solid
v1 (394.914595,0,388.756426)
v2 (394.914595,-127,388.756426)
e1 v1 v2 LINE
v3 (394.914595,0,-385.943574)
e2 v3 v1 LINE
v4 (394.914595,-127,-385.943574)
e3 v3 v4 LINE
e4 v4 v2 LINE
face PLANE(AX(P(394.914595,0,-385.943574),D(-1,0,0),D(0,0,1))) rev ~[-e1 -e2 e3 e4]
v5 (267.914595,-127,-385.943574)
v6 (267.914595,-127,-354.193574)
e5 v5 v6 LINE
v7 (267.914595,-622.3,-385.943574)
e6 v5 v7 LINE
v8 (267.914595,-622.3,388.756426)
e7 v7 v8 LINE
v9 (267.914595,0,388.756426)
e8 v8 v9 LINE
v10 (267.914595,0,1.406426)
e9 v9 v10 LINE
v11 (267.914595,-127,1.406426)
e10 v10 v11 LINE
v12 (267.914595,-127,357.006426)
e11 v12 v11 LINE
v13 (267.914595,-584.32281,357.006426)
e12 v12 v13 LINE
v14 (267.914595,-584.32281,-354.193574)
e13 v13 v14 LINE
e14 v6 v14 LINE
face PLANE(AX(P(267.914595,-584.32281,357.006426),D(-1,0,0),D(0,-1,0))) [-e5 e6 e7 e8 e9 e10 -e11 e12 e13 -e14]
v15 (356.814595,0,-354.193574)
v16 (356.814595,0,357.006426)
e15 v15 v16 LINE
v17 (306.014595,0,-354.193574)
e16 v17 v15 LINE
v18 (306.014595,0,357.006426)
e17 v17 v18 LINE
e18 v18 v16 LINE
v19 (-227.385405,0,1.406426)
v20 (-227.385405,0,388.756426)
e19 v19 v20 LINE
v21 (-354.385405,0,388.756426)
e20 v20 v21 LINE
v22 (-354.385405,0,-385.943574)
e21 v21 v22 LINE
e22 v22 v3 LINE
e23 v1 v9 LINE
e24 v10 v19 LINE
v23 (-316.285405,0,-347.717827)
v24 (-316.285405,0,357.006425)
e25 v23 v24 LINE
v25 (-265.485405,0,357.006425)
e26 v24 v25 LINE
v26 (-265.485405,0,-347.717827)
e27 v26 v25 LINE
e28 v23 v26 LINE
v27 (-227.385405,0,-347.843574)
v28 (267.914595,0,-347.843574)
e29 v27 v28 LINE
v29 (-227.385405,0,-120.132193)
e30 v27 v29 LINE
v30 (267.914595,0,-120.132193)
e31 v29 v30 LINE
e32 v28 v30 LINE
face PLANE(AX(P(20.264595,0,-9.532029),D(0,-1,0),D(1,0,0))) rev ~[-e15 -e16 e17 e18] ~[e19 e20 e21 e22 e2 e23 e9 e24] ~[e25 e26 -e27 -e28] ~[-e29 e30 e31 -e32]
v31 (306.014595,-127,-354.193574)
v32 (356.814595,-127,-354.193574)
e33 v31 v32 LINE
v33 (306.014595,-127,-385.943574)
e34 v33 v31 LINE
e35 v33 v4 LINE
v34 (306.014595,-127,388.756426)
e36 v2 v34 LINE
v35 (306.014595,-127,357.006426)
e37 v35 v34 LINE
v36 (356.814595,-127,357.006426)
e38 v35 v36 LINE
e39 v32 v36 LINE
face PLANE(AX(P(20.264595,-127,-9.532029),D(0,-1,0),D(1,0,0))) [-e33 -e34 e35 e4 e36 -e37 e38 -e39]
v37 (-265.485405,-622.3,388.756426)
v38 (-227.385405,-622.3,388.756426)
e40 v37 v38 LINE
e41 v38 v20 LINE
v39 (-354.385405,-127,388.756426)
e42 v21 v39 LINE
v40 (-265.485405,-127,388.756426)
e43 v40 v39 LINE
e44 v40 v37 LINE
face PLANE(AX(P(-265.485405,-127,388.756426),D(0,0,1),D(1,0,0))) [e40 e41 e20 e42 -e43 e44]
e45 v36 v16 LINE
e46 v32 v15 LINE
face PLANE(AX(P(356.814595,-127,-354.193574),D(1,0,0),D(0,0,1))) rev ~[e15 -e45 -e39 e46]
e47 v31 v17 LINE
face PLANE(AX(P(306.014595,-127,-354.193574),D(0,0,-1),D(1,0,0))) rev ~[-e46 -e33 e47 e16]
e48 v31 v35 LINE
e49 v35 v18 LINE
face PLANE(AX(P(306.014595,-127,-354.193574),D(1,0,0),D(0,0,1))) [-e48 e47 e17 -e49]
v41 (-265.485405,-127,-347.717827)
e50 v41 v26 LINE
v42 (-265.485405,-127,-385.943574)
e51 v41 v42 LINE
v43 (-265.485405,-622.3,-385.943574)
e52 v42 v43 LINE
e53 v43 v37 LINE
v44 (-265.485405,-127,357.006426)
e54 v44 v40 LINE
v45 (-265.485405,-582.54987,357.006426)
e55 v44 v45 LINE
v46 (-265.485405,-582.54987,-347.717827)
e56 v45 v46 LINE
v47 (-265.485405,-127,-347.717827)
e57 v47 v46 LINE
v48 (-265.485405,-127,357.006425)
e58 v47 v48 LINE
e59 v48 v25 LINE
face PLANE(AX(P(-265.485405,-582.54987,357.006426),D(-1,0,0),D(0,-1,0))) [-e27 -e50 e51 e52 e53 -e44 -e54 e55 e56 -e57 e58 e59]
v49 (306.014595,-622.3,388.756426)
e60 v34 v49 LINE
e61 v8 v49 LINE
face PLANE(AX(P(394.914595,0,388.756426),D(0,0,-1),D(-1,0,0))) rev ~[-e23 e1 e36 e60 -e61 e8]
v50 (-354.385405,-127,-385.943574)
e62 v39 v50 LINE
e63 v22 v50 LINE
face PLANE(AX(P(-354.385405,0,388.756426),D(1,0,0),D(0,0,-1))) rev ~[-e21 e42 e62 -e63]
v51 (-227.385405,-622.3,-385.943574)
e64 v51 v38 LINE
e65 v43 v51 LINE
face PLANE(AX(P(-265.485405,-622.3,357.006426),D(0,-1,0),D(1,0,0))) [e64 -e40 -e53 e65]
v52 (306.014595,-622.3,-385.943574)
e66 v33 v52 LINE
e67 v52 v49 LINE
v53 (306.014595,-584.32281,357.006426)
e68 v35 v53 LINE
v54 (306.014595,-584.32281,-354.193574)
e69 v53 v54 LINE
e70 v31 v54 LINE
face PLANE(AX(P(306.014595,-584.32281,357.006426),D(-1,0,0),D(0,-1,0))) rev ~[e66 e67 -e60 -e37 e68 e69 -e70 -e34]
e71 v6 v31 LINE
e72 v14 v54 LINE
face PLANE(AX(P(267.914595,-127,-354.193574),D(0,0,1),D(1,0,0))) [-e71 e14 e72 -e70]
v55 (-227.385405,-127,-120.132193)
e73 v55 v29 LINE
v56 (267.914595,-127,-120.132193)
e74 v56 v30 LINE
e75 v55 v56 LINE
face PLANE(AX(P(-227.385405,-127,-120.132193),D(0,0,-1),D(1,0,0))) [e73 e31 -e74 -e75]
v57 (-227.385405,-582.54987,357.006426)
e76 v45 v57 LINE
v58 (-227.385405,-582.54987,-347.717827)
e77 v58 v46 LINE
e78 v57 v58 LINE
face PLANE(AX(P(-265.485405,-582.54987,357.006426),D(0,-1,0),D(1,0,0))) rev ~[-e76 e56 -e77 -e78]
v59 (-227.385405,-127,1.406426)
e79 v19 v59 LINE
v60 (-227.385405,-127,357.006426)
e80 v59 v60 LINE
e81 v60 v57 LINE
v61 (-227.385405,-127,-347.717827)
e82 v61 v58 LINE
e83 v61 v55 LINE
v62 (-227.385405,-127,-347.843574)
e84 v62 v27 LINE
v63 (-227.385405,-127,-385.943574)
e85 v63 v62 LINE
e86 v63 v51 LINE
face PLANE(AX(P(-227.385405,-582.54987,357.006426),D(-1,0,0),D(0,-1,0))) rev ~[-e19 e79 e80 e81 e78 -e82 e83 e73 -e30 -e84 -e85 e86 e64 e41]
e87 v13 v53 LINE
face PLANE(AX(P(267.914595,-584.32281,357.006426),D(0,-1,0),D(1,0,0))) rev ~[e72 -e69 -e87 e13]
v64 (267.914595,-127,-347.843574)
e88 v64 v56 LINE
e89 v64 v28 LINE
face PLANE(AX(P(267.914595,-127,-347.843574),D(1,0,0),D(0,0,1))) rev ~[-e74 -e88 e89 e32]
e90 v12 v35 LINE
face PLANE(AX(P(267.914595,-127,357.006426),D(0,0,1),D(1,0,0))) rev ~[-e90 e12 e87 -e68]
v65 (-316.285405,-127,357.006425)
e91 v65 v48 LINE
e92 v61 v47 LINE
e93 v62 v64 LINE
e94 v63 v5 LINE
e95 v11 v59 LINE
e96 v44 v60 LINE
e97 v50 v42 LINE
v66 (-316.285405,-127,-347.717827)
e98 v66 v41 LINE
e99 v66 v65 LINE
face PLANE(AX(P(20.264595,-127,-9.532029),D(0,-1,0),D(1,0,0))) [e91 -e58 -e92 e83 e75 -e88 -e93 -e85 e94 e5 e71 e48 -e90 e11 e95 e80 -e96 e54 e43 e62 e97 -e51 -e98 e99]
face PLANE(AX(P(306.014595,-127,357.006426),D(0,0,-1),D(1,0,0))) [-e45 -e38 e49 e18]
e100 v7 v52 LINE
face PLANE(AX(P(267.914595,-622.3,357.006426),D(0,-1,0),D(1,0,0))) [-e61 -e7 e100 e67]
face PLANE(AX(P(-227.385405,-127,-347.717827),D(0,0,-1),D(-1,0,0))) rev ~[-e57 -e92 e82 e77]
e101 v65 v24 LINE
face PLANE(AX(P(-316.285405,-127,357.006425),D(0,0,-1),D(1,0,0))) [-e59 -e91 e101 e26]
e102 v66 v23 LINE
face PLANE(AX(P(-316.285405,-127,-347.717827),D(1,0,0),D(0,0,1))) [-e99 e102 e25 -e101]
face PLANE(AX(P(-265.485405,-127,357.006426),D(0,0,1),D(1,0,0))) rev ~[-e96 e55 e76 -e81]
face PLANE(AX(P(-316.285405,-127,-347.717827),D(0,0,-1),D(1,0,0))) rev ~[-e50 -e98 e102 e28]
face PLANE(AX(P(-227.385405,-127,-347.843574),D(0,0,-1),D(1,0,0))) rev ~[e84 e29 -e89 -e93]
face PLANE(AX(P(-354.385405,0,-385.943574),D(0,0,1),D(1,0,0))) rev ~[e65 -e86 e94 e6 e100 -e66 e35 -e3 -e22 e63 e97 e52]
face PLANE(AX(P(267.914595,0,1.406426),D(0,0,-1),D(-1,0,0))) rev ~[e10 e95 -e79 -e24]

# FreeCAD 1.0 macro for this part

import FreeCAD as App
import Part
import Sketcher

V = App.Vector
Q = App.Units.Quantity

doc = App.newDocument("Part")
body = doc.addObject("PartDesign::Body", "Body")

sketch1 = body.newObject("Sketcher::SketchObject", "Sketch")
sketch1.AttachmentSupport = (doc.getObject("XZ_Plane"), [""])
sketch1.MapMode = "FlatFace"
sketch1.addGeometry(Part.LineSegment(V(-227.385405, 388.756426, 0), V(-354.385405, 388.756426, 0)), False)
sketch1.addGeometry(Part.LineSegment(V(-354.385405, 388.756426, 0), V(-354.385405, -385.943574, 0)), False)
sketch1.addGeometry(Part.LineSegment(V(-354.385405, -385.943574, 0), V(394.914595, -385.943574, 0)), False)
sketch1.addGeometry(Part.LineSegment(V(394.914595, -385.943574, 0), V(394.914595, 388.756426, 0)), False)
sketch1.addGeometry(Part.LineSegment(V(394.914595, 388.756426, 0), V(267.914595, 388.756426, 0)), False)
sketch1.addGeometry(Part.LineSegment(V(267.914595, 388.756426, 0), V(267.914595, 1.406426, 0)), False)
sketch1.addGeometry(Part.LineSegment(V(267.914595, 1.406426, 0), V(-227.385405, 1.406426, 0)), False)
sketch1.addGeometry(Part.LineSegment(V(-227.385405, 1.406426, 0), V(-227.385405, 388.756426, 0)), False)
sketch1.addConstraint(Sketcher.Constraint("Coincident", 0, 2, 1, 1))
sketch1.addConstraint(Sketcher.Constraint("Coincident", 1, 2, 2, 1))
sketch1.addConstraint(Sketcher.Constraint("Coincident", 2, 2, 3, 1))
sketch1.addConstraint(Sketcher.Constraint("Coincident", 3, 2, 4, 1))
sketch1.addConstraint(Sketcher.Constraint("Coincident", 4, 2, 5, 1))
sketch1.addConstraint(Sketcher.Constraint("Coincident", 5, 2, 6, 1))
sketch1.addConstraint(Sketcher.Constraint("Coincident", 6, 2, 7, 1))
sketch1.addConstraint(Sketcher.Constraint("Coincident", 7, 2, 0, 1))
sketch1.addConstraint(Sketcher.Constraint("Horizontal", 0))
sketch1.addConstraint(Sketcher.Constraint("Vertical", 1))
sketch1.addConstraint(Sketcher.Constraint("Horizontal", 2))
sketch1.addConstraint(Sketcher.Constraint("Vertical", 3))
sketch1.addConstraint(Sketcher.Constraint("Horizontal", 4))
sketch1.addConstraint(Sketcher.Constraint("Vertical", 5))
sketch1.addConstraint(Sketcher.Constraint("Horizontal", 6))
sketch1.addConstraint(Sketcher.Constraint("Vertical", 7))
sketch1.addConstraint(Sketcher.Constraint("Horizontal", 0, 2, 3, 2))
sketch1.addConstraint(Sketcher.Constraint("Equal", 0, 4))
sketch1.addConstraint(Sketcher.Constraint("DistanceX", 0, 2, 0, 1, Q("5 in")))
sketch1.addConstraint(Sketcher.Constraint("DistanceX", 2, 1, 2, 2, Q("29.5 in")))
sketch1.addConstraint(Sketcher.Constraint("DistanceY", 1, 2, 1, 1, Q("30.5 in")))
sketch1.addConstraint(Sketcher.Constraint("DistanceY", 5, 2, 5, 1, Q("15.25 in")))
sketch1.addConstraint(Sketcher.Constraint("DistanceX", 0, 2, -1, 1, Q("354.385405 mm")))
sketch1.addConstraint(Sketcher.Constraint("DistanceY", -1, 1, 0, 2, Q("388.756426 mm")))
pad1 = body.newObject("PartDesign::Pad", "Pad")
pad1.Profile = sketch1
pad1.Length = Q("5 in")

sketch2 = body.newObject("Sketcher::SketchObject", "Sketch001")
sketch2.AttachmentSupport = (doc.getObject("XZ_Plane"), [""])
sketch2.MapMode = "FlatFace"
sketch2.AttachmentOffset = App.Placement(V(0, 0, 5 * 25.4), App.Rotation())
sketch2.addGeometry(Part.LineSegment(V(-316.285405, 357.006425, 0), V(-316.285405, -347.717827, 0)), False)
sketch2.addGeometry(Part.LineSegment(V(-316.285405, -347.717827, 0), V(-265.485405, -347.717827, 0)), False)
sketch2.addGeometry(Part.LineSegment(V(-265.485405, -347.717827, 0), V(-265.485405, 357.006425, 0)), False)
sketch2.addGeometry(Part.LineSegment(V(-265.485405, 357.006425, 0), V(-316.285405, 357.006425, 0)), False)
sketch2.addConstraint(Sketcher.Constraint("Coincident", 0, 2, 1, 1))
sketch2.addConstraint(Sketcher.Constraint("Coincident", 1, 2, 2, 1))
sketch2.addConstraint(Sketcher.Constraint("Coincident", 2, 2, 3, 1))
sketch2.addConstraint(Sketcher.Constraint("Coincident", 3, 2, 0, 1))
sketch2.addConstraint(Sketcher.Constraint("Vertical", 0))
sketch2.addConstraint(Sketcher.Constraint("Horizontal", 1))
sketch2.addConstraint(Sketcher.Constraint("Vertical", 2))
sketch2.addConstraint(Sketcher.Constraint("Horizontal", 3))
sketch2.addConstraint(Sketcher.Constraint("DistanceX", 1, 1, 1, 2, Q("2 in")))
sketch2.addConstraint(Sketcher.Constraint("DistanceY", 0, 2, 0, 1, Q("704.724253 mm")))
sketch2.addConstraint(Sketcher.Constraint("DistanceX", 0, 2, -1, 1, Q("316.285405 mm")))
sketch2.addConstraint(Sketcher.Constraint("DistanceY", 0, 2, -1, 1, Q("347.717827 mm")))
pocket1 = body.newObject("PartDesign::Pocket", "Pocket")
pocket1.Profile = sketch2
pocket1.Length = Q("5 in")

sketch3 = body.newObject("Sketcher::SketchObject", "Sketch002")
sketch3.AttachmentSupport = (doc.getObject("XZ_Plane"), [""])
sketch3.MapMode = "FlatFace"
sketch3.AttachmentOffset = App.Placement(V(0, 0, 5 * 25.4), App.Rotation())
sketch3.addGeometry(Part.LineSegment(V(306.014595, 357.006426, 0), V(306.014595, -354.193574, 0)), False)
sketch3.addGeometry(Part.LineSegment(V(306.014595, -354.193574, 0), V(356.814595, -354.193574, 0)), False)
sketch3.addGeometry(Part.LineSegment(V(356.814595, -354.193574, 0), V(356.814595, 357.006426, 0)), False)
sketch3.addGeometry(Part.LineSegment(V(356.814595, 357.006426, 0), V(306.014595, 357.006426, 0)), False)
sketch3.addConstraint(Sketcher.Constraint("Coincident", 0, 2, 1, 1))
sketch3.addConstraint(Sketcher.Constraint("Coincident", 1, 2, 2, 1))
sketch3.addConstraint(Sketcher.Constraint("Coincident", 2, 2, 3, 1))
sketch3.addConstraint(Sketcher.Constraint("Coincident", 3, 2, 0, 1))
sketch3.addConstraint(Sketcher.Constraint("Vertical", 0))
sketch3.addConstraint(Sketcher.Constraint("Horizontal", 1))
sketch3.addConstraint(Sketcher.Constraint("Vertical", 2))
sketch3.addConstraint(Sketcher.Constraint("Horizontal", 3))
sketch3.addConstraint(Sketcher.Constraint("DistanceX", 1, 1, 1, 2, Q("2 in")))
sketch3.addConstraint(Sketcher.Constraint("DistanceY", 0, 2, 0, 1, Q("28 in")))
sketch3.addConstraint(Sketcher.Constraint("DistanceX", -1, 1, 0, 2, Q("306.014595 mm")))
sketch3.addConstraint(Sketcher.Constraint("DistanceY", 0, 2, -1, 1, Q("354.193574 mm")))
pocket2 = body.newObject("PartDesign::Pocket", "Pocket001")
pocket2.Profile = sketch3
pocket2.Length = Q("5 in")

sketch4 = body.newObject("Sketcher::SketchObject", "Sketch003")
sketch4.AttachmentSupport = (doc.getObject("XZ_Plane"), [""])
sketch4.MapMode = "FlatFace"
sketch4.AttachmentOffset = App.Placement(V(0, 0, 5 * 25.4), App.Rotation())
sketch4.addGeometry(Part.LineSegment(V(-227.385405, -120.132193, 0), V(-227.385405, -347.843574, 0)), False)
sketch4.addGeometry(Part.LineSegment(V(-227.385405, -347.843574, 0), V(267.914595, -347.843574, 0)), False)
sketch4.addGeometry(Part.LineSegment(V(267.914595, -347.843574, 0), V(267.914595, -120.132193, 0)), False)
sketch4.addGeometry(Part.LineSegment(V(267.914595, -120.132193, 0), V(-227.385405, -120.132193, 0)), False)
sketch4.addConstraint(Sketcher.Constraint("Coincident", 0, 2, 1, 1))
sketch4.addConstraint(Sketcher.Constraint("Coincident", 1, 2, 2, 1))
sketch4.addConstraint(Sketcher.Constraint("Coincident", 2, 2, 3, 1))
sketch4.addConstraint(Sketcher.Constraint("Coincident", 3, 2, 0, 1))
sketch4.addConstraint(Sketcher.Constraint("Vertical", 0))
sketch4.addConstraint(Sketcher.Constraint("Horizontal", 1))
sketch4.addConstraint(Sketcher.Constraint("Vertical", 2))
sketch4.addConstraint(Sketcher.Constraint("Horizontal", 3))
sketch4.addConstraint(Sketcher.Constraint("DistanceX", 1, 1, 1, 2, Q("19.5 in")))
sketch4.addConstraint(Sketcher.Constraint("DistanceY", 0, 2, 0, 1, Q("227.711381 mm")))
sketch4.addConstraint(Sketcher.Constraint("DistanceX", 0, 2, -1, 1, Q("227.385405 mm")))
sketch4.addConstraint(Sketcher.Constraint("DistanceY", 0, 2, -1, 1, Q("347.843574 mm")))
pocket3 = body.newObject("PartDesign::Pocket", "Pocket002")
pocket3.Profile = sketch4
pocket3.Length = Q("5 in")

sketch5 = body.newObject("Sketcher::SketchObject", "Sketch004")
sketch5.AttachmentSupport = (doc.getObject("XZ_Plane"), [""])
sketch5.MapMode = "FlatFace"
sketch5.AttachmentOffset = App.Placement(V(0, 0, 5 * 25.4), App.Rotation())
sketch5.addGeometry(Part.LineSegment(V(-265.485405, 388.756426, 0), V(-265.485405, 357.006426, 0)), False)
sketch5.addGeometry(Part.LineSegment(V(-265.485405, 357.006426, 0), V(-227.385405, 357.006426, 0)), False)
sketch5.addGeometry(Part.LineSegment(V(-227.385405, 357.006426, 0), V(-227.385405, 388.756426, 0)), False)
sketch5.addGeometry(Part.LineSegment(V(-227.385405, 388.756426, 0), V(-265.485405, 388.756426, 0)), False)
sketch5.addGeometry(Part.LineSegment(V(267.914595, 388.756426, 0), V(267.914595, 357.006426, 0)), False)
sketch5.addGeometry(Part.LineSegment(V(267.914595, 357.006426, 0), V(306.014595, 357.006426, 0)), False)
sketch5.addGeometry(Part.LineSegment(V(306.014595, 357.006426, 0), V(306.014595, 388.756426, 0)), False)
sketch5.addGeometry(Part.LineSegment(V(306.014595, 388.756426, 0), V(267.914595, 388.756426, 0)), False)
sketch5.addGeometry(Part.LineSegment(V(267.914595, -354.193574, 0), V(267.914595, -385.943574, 0)), False)
sketch5.addGeometry(Part.LineSegment(V(267.914595, -385.943574, 0), V(306.014595, -385.943574, 0)), False)
sketch5.addGeometry(Part.LineSegment(V(306.014595, -385.943574, 0), V(306.014595, -354.193574, 0)), False)
sketch5.addGeometry(Part.LineSegment(V(306.014595, -354.193574, 0), V(267.914595, -354.193574, 0)), False)
sketch5.addGeometry(Part.LineSegment(V(-227.385405, -347.717827, 0), V(-265.485405, -347.717827, 0)), False)
sketch5.addGeometry(Part.LineSegment(V(-265.485405, -347.717827, 0), V(-265.485405, -385.943574, 0)), False)
sketch5.addGeometry(Part.LineSegment(V(-265.485405, -385.943574, 0), V(-227.385405, -385.943574, 0)), False)
sketch5.addGeometry(Part.LineSegment(V(-227.385405, -385.943574, 0), V(-227.385405, -347.717827, 0)), False)
sketch5.addConstraint(Sketcher.Constraint("Coincident", 0, 2, 1, 1))
sketch5.addConstraint(Sketcher.Constraint("Coincident", 1, 2, 2, 1))
sketch5.addConstraint(Sketcher.Constraint("Coincident", 2, 2, 3, 1))
sketch5.addConstraint(Sketcher.Constraint("Coincident", 3, 2, 0, 1))
sketch5.addConstraint(Sketcher.Constraint("Coincident", 4, 2, 5, 1))
sketch5.addConstraint(Sketcher.Constraint("Coincident", 5, 2, 6, 1))
sketch5.addConstraint(Sketcher.Constraint("Coincident", 6, 2, 7, 1))
sketch5.addConstraint(Sketcher.Constraint("Coincident", 7, 2, 4, 1))
sketch5.addConstraint(Sketcher.Constraint("Coincident", 8, 2, 9, 1))
sketch5.addConstraint(Sketcher.Constraint("Coincident", 9, 2, 10, 1))
sketch5.addConstraint(Sketcher.Constraint("Coincident", 10, 2, 11, 1))
sketch5.addConstraint(Sketcher.Constraint("Coincident", 11, 2, 8, 1))
sketch5.addConstraint(Sketcher.Constraint("Coincident", 12, 2, 13, 1))
sketch5.addConstraint(Sketcher.Constraint("Coincident", 13, 2, 14, 1))
sketch5.addConstraint(Sketcher.Constraint("Coincident", 14, 2, 15, 1))
sketch5.addConstraint(Sketcher.Constraint("Coincident", 15, 2, 12, 1))
sketch5.addConstraint(Sketcher.Constraint("Vertical", 0))
sketch5.addConstraint(Sketcher.Constraint("Horizontal", 1))
sketch5.addConstraint(Sketcher.Constraint("Vertical", 2))
sketch5.addConstraint(Sketcher.Constraint("Horizontal", 3))
sketch5.addConstraint(Sketcher.Constraint("Vertical", 4))
sketch5.addConstraint(Sketcher.Constraint("Horizontal", 5))
sketch5.addConstraint(Sketcher.Constraint("Vertical", 6))
sketch5.addConstraint(Sketcher.Constraint("Horizontal", 7))
sketch5.addConstraint(Sketcher.Constraint("Vertical", 8))
sketch5.addConstraint(Sketcher.Constraint("Horizontal", 9))
sketch5.addConstraint(Sketcher.Constraint("Vertical", 10))
sketch5.addConstraint(Sketcher.Constraint("Horizontal", 11))
sketch5.addConstraint(Sketcher.Constraint("Horizontal", 12))
sketch5.addConstraint(Sketcher.Constraint("Vertical", 13))
sketch5.addConstraint(Sketcher.Constraint("Horizontal", 14))
sketch5.addConstraint(Sketcher.Constraint("Vertical", 15))
sketch5.addConstraint(Sketcher.Constraint("Horizontal", 1, 2, 4, 2))
sketch5.addConstraint(Sketcher.Constraint("Horizontal", 3, 2, 6, 2))
sketch5.addConstraint(Sketcher.Constraint("Horizontal", 9, 2, 13, 2))
sketch5.addConstraint(Sketcher.Constraint("Vertical", 7, 2, 8, 2))
sketch5.addConstraint(Sketcher.Constraint("Vertical", 6, 2, 9, 2))
sketch5.addConstraint(Sketcher.Constraint("Vertical", 3, 2, 12, 2))
sketch5.addConstraint(Sketcher.Constraint("Vertical", 2, 2, 14, 2))
sketch5.addConstraint(Sketcher.Constraint("Equal", 3, 5))
sketch5.addConstraint(Sketcher.Constraint("Equal", 6, 8))
sketch5.addConstraint(Sketcher.Constraint("DistanceX", 1, 1, 1, 2, Q("1.5 in")))
sketch5.addConstraint(Sketcher.Constraint("DistanceX", 0, 2, 4, 2, Q("21 in")))
sketch5.addConstraint(Sketcher.Constraint("DistanceY", 10, 2, 5, 2, Q("28 in")))
sketch5.addConstraint(Sketcher.Constraint("DistanceY", 0, 2, 0, 1, Q("1.25 in")))
sketch5.addConstraint(Sketcher.Constraint("DistanceY", 13, 2, 13, 1, Q("38.225747 mm")))
sketch5.addConstraint(Sketcher.Constraint("DistanceX", 0, 2, -1, 1, Q("265.485405 mm")))
sketch5.addConstraint(Sketcher.Constraint("DistanceY", -1, 1, 0, 2, Q("357.006426 mm")))
pad2 = body.newObject("PartDesign::Pad", "Pad001")
pad2.Profile = sketch5
pad2.Length = Q("19.5 in")

sketch6 = body.newObject("Sketcher::SketchObject", "Sketch005")
sketch6.AttachmentSupport = (doc.getObject("XY_Plane"), [""])
sketch6.MapMode = "FlatFace"
sketch6.AttachmentOffset = App.Placement(V(0, 0, 357.006426), App.Rotation())
sketch6.addGeometry(Part.LineSegment(V(-265.485405, -622.3, 0), V(-265.485405, -582.54987, 0)), False)
sketch6.addGeometry(Part.LineSegment(V(-265.485405, -582.54987, 0), V(-227.385405, -582.54987, 0)), False)
sketch6.addGeometry(Part.LineSegment(V(-227.385405, -582.54987, 0), V(-227.385405, -622.3, 0)), False)
sketch6.addGeometry(Part.LineSegment(V(-227.385405, -622.3, 0), V(-265.485405, -622.3, 0)), False)
sketch6.addConstraint(Sketcher.Constraint("Coincident", 0, 2, 1, 1))
sketch6.addConstraint(Sketcher.Constraint("Coincident", 1, 2, 2, 1))
sketch6.addConstraint(Sketcher.Constraint("Coincident", 2, 2, 3, 1))
sketch6.addConstraint(Sketcher.Constraint("Coincident", 3, 2, 0, 1))
sketch6.addConstraint(Sketcher.Constraint("Vertical", 0))
sketch6.addConstraint(Sketcher.Constraint("Horizontal", 1))
sketch6.addConstraint(Sketcher.Constraint("Vertical", 2))
sketch6.addConstraint(Sketcher.Constraint("Horizontal", 3))
sketch6.addConstraint(Sketcher.Constraint("DistanceX", 1, 1, 1, 2, Q("1.5 in")))
sketch6.addConstraint(Sketcher.Constraint("DistanceY", 2, 2, -1, 1, Q("24.5 in")))
sketch6.addConstraint(Sketcher.Constraint("DistanceY", 0, 1, 0, 2, Q("39.75013 mm")))
sketch6.addConstraint(Sketcher.Constraint("DistanceX", 0, 2, -1, 1, Q("265.485405 mm")))
pad3 = body.newObject("PartDesign::Pad", "Pad002")
pad3.Profile = sketch6
pad3.Length = Q("29 in")
pad3.Reversed = True

sketch7 = body.newObject("Sketcher::SketchObject", "Sketch006")
sketch7.AttachmentSupport = (doc.getObject("XY_Plane"), [""])
sketch7.MapMode = "FlatFace"
sketch7.AttachmentOffset = App.Placement(V(0, 0, 357.006426), App.Rotation())
sketch7.addGeometry(Part.LineSegment(V(267.914595, -622.3, 0), V(267.914595, -584.32281, 0)), False)
sketch7.addGeometry(Part.LineSegment(V(267.914595, -584.32281, 0), V(306.014595, -584.32281, 0)), False)
sketch7.addGeometry(Part.LineSegment(V(306.014595, -584.32281, 0), V(306.014595, -622.3, 0)), False)
sketch7.addGeometry(Part.LineSegment(V(306.014595, -622.3, 0), V(267.914595, -622.3, 0)), False)
sketch7.addConstraint(Sketcher.Constraint("Coincident", 0, 2, 1, 1))
sketch7.addConstraint(Sketcher.Constraint("Coincident", 1, 2, 2, 1))
sketch7.addConstraint(Sketcher.Constraint("Coincident", 2, 2, 3, 1))
sketch7.addConstraint(Sketcher.Constraint("Coincident", 3, 2, 0, 1))
sketch7.addConstraint(Sketcher.Constraint("Vertical", 0))
sketch7.addConstraint(Sketcher.Constraint("Horizontal", 1))
sketch7.addConstraint(Sketcher.Constraint("Vertical", 2))
sketch7.addConstraint(Sketcher.Constraint("Horizontal", 3))
sketch7.addConstraint(Sketcher.Constraint("DistanceX", 1, 1, 1, 2, Q("1.5 in")))
sketch7.addConstraint(Sketcher.Constraint("DistanceY", 2, 2, -1, 1, Q("24.5 in")))
sketch7.addConstraint(Sketcher.Constraint("DistanceY", 0, 1, 0, 2, Q("37.97719 mm")))
sketch7.addConstraint(Sketcher.Constraint("DistanceX", -1, 1, 0, 2, Q("267.914595 mm")))
pad4 = body.newObject("PartDesign::Pad", "Pad003")
pad4.Profile = sketch7
pad4.Length = Q("29 in")
pad4.Reversed = True

doc.recompute()
